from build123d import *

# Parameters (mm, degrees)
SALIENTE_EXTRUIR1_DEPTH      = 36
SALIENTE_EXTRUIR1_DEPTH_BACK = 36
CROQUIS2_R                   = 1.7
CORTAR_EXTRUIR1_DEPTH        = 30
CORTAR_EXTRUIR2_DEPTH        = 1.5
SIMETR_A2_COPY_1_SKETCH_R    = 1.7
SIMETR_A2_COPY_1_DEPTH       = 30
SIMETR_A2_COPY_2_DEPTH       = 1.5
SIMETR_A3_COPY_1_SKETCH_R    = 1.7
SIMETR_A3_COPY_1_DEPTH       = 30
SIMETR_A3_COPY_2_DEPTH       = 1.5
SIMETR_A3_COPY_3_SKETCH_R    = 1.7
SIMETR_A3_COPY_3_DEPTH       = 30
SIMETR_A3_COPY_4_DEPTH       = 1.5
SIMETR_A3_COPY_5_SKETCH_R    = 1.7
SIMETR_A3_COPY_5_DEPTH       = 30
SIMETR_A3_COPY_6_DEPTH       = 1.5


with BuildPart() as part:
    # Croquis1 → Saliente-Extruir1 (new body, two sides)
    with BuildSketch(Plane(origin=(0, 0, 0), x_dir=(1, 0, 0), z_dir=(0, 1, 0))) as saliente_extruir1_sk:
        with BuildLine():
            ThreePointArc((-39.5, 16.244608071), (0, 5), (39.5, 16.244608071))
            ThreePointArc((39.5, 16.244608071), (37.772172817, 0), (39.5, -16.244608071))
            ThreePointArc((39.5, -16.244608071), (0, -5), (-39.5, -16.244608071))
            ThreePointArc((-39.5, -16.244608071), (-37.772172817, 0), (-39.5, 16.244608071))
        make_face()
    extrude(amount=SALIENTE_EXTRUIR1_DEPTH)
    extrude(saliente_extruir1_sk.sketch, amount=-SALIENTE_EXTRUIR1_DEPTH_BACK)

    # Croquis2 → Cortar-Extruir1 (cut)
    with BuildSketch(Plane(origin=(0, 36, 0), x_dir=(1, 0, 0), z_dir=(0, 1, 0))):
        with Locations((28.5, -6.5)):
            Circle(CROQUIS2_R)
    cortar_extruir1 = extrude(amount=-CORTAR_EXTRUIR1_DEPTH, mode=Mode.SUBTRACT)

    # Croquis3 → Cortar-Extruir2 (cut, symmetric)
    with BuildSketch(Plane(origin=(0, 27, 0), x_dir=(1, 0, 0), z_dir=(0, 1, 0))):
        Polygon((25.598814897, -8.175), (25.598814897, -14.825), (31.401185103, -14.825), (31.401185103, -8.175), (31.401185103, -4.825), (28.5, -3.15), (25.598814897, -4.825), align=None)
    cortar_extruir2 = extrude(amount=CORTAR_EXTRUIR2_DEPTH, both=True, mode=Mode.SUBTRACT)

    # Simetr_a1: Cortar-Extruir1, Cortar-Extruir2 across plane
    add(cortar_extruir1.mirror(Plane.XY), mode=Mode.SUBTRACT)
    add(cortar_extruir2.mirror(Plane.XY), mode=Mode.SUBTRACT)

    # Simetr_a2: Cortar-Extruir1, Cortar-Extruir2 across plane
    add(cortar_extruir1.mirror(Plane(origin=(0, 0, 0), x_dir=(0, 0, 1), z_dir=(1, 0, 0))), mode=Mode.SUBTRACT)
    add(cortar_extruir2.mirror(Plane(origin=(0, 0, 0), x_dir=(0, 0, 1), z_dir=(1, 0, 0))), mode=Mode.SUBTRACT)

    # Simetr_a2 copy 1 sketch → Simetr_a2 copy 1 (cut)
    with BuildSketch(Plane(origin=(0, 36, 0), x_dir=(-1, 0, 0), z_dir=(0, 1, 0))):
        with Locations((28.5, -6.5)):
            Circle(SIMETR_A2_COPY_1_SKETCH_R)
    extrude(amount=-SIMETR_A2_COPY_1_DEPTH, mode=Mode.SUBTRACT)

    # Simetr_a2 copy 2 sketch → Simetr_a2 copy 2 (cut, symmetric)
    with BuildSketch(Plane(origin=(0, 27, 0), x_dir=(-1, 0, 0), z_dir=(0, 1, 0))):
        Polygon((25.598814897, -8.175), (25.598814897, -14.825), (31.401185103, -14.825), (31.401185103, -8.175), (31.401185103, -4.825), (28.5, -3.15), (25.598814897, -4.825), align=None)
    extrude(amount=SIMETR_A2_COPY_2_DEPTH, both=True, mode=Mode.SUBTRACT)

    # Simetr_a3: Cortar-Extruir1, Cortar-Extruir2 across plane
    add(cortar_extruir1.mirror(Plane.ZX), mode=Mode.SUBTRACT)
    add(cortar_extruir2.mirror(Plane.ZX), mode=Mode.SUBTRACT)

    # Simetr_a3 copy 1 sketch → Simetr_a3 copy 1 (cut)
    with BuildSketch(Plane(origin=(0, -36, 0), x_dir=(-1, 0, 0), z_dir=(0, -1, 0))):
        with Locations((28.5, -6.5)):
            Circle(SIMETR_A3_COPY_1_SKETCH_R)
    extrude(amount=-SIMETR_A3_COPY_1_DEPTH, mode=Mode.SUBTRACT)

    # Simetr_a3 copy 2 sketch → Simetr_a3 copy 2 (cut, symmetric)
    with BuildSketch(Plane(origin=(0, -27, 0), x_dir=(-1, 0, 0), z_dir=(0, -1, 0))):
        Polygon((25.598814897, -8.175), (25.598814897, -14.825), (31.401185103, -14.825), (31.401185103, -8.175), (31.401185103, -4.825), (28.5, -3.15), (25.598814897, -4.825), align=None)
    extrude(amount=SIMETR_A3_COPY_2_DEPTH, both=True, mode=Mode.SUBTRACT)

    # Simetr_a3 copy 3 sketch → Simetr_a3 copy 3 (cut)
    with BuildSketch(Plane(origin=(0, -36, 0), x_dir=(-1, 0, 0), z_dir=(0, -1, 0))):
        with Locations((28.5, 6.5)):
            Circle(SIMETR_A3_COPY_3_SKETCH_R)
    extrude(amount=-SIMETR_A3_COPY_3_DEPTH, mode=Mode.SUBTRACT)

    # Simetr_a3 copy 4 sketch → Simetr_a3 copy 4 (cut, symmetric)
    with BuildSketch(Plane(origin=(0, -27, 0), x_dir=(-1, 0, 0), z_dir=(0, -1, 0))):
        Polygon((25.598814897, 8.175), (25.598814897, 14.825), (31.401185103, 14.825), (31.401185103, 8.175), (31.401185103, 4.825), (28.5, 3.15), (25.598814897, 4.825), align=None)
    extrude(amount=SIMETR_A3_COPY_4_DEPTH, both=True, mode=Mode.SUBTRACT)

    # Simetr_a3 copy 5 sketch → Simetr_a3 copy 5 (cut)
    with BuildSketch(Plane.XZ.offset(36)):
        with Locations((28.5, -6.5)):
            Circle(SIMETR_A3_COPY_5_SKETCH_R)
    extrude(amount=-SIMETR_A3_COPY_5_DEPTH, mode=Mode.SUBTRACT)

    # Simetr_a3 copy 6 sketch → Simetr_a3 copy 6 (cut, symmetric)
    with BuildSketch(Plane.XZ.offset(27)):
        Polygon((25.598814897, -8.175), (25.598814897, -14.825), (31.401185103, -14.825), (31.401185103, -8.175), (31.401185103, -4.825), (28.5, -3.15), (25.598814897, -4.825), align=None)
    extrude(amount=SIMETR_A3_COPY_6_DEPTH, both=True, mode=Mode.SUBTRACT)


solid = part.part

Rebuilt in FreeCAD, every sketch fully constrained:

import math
import FreeCAD as App
import Part
import Sketcher
from FreeCAD import Vector
Q = App.Units.Quantity


def add_polygon(sketch, points):
    """Adds a closed chain of lines whose ends are joined by coincident constraints."""
    first, n = sketch.GeometryCount, len(points)
    for a, b in zip(points, points[1:] + points[:1]):
        sketch.addGeometry(Part.LineSegment(App.Vector(*a, 0), App.Vector(*b, 0)), False)
    for i in range(n):
        sketch.addConstraint(Sketcher.Constraint("Coincident", first + i, 2, first + (i + 1) % n, 1))

doc = App.newDocument("Part")
body = doc.addObject("PartDesign::Body", "Body")

# Sketch on XZ plane
sketch1 = body.newObject("Sketcher::SketchObject", "Sketch")
sketch1.AttachmentSupport = (doc.getObject("XZ_Plane"), [""])
sketch1.MapMode = "FlatFace"
sketch1.addGeometry(Part.ArcOfCircle(Part.Circle(Vector(0, -80, 0), Vector(0, 0, 1), 75), math.radians(58), math.radians(122)), False)
sketch1.addGeometry(Part.ArcOfCircle(Part.Circle(Vector(-115, 0, 0), Vector(0, 0, 1), 77), math.radians(-12), math.radians(12)), False)
sketch1.addGeometry(Part.ArcOfCircle(Part.Circle(Vector(0, 80, 0), Vector(0, 0, 1), 75), math.radians(-122), math.radians(-58)), False)
sketch1.addGeometry(Part.ArcOfCircle(Part.Circle(Vector(115, 0, 0), Vector(0, 0, 1), 77), math.radians(168), math.radians(192)), False)
sketch1.addConstraint(Sketcher.Constraint("Coincident", 0, 2, 1, 1))
sketch1.addConstraint(Sketcher.Constraint("Coincident", 1, 2, 2, 1))
sketch1.addConstraint(Sketcher.Constraint("Coincident", 2, 2, 3, 1))
sketch1.addConstraint(Sketcher.Constraint("Coincident", 3, 2, 0, 1))
sketch1.addConstraint(Sketcher.Constraint("Equal", 0, 2))
sketch1.addConstraint(Sketcher.Constraint("Equal", 1, 3))
sketch1.addConstraint(Sketcher.Constraint("Symmetric", 0, 3, 2, 3, -1, 1))
sketch1.addConstraint(Sketcher.Constraint("Symmetric", 1, 3, 3, 3, -1, 1))
sketch1.addConstraint(Sketcher.Constraint("Symmetric", 1, 2, 2, 2, -2))
sketch1.addConstraint(Sketcher.Constraint("Radius", 0, 75.0))
sketch1.addConstraint(Sketcher.Constraint("DistanceY", 0, 3, -1, 1, 80.0))
sketch1.addConstraint(Sketcher.Constraint("DistanceX", 1, 3, -1, 1, 115.0))
sketch1.addConstraint(Sketcher.Constraint("DistanceX", 1, 2, 2, 2, 79.0))
pad1 = body.newObject("PartDesign::Pad", "Pad")
pad1.Profile = sketch1
pad1.Type = "TwoLengths"
pad1.Length = 36
pad1.Length2 = 36
pad1.Reversed = True

# Sketch on XZ plane
sketch2 = body.newObject("Sketcher::SketchObject", "Sketch001")
sketch2.AttachmentSupport = (doc.getObject("XZ_Plane"), [""])
sketch2.MapMode = "FlatFace"
sketch2.AttachmentOffset = App.Placement(Vector(0, 0, -36), App.Rotation())
sketch2.addGeometry(Part.Circle(Vector(28.5, 6.5, 0), Vector(0, 0, 1), 1.7), False)
sketch2.addConstraint(Sketcher.Constraint("Diameter", 0, 3.4))
sketch2.addConstraint(Sketcher.Constraint("DistanceX", -1, 1, 0, 3, 28.5))
sketch2.addConstraint(Sketcher.Constraint("DistanceY", -1, 1, 0, 3, 6.5))
pocket1 = body.newObject("PartDesign::Pocket", "Pocket")
pocket1.Profile = sketch2
pocket1.Length = 30
pocket1.Reversed = True

# Sketch on XZ plane
sketch3 = body.newObject("Sketcher::SketchObject", "Sketch002")
sketch3.AttachmentSupport = (doc.getObject("XZ_Plane"), [""])
sketch3.MapMode = "FlatFace"
sketch3.AttachmentOffset = App.Placement(Vector(0, 0, -27), App.Rotation())
add_polygon(sketch3, [(25.6, 14.8), (31.4, 14.8), (31.4, 4.8), (28.5, 3.1), (25.6, 4.8)])  # lines 0-4
sketch3.addConstraint(Sketcher.Constraint("Horizontal", 0))
sketch3.addConstraint(Sketcher.Constraint("Vertical", 1))
sketch3.addConstraint(Sketcher.Constraint("Vertical", 4))
sketch3.addConstraint(Sketcher.Constraint("Horizontal", 1, 2, 3, 2))
sketch3.addConstraint(Sketcher.Constraint("Equal", 2, 3))
sketch3.addConstraint(Sketcher.Constraint("DistanceY", 1, 2, 1, 1, 10.0))
sketch3.addConstraint(Sketcher.Constraint("Angle", 2, Q("-150 deg")))
sketch3.addConstraint(Sketcher.Constraint("DistanceX", -1, 1, 2, 2, 28.5))
sketch3.addConstraint(Sketcher.Constraint("Distance", 2, 3.35))
sketch3.addConstraint(Sketcher.Constraint("DistanceY", -1, 1, 2, 2, 3.15))
pocket2 = body.newObject("PartDesign::Pocket", "Pocket001")
pocket2.Profile = sketch3
pocket2.Length = 3
pocket2.Midplane = True
doc.recompute()

mirrored = body.newObject("PartDesign::Mirrored", "Mirrored")
mirrored.Originals = [pocket1, pocket2]
mirrored.MirrorPlane = (doc.getObject("XY_Plane"), [""])
body.Tip = mirrored
doc.recompute()

mirrored2 = body.newObject("PartDesign::Mirrored", "Mirrored001")
mirrored2.Originals = [pocket1, pocket2]
mirrored2.MirrorPlane = (doc.getObject("YZ_Plane"), [""])
body.Tip = mirrored2

# Sketch on XZ plane
sketch4 = body.newObject("Sketcher::SketchObject", "Sketch003")
sketch4.AttachmentSupport = (doc.getObject("XZ_Plane"), [""])
sketch4.MapMode = "FlatFace"
sketch4.AttachmentOffset = App.Placement(Vector(0, 0, -36), App.Rotation())
sketch4.addGeometry(Part.Circle(Vector(-28.5, -6.5, 0), Vector(0, 0, 1), 1.7), False)
sketch4.addConstraint(Sketcher.Constraint("Diameter", 0, 3.4))
sketch4.addConstraint(Sketcher.Constraint("DistanceX", 0, 3, -1, 1, 28.5))
sketch4.addConstraint(Sketcher.Constraint("DistanceY", 0, 3, -1, 1, 6.5))
pocket3 = body.newObject("PartDesign::Pocket", "Pocket002")
pocket3.Profile = sketch4
pocket3.Length = 30
pocket3.Reversed = True

# Sketch on XZ plane
sketch5 = body.newObject("Sketcher::SketchObject", "Sketch004")
sketch5.AttachmentSupport = (doc.getObject("XZ_Plane"), [""])
sketch5.MapMode = "FlatFace"
sketch5.AttachmentOffset = App.Placement(Vector(0, 0, -27), App.Rotation())
add_polygon(sketch5, [(-25.6, -14.8), (-31.4, -14.8), (-31.4, -4.8), (-28.5, -3.1), (-25.6, -4.8)])  # lines 0-4
sketch5.addConstraint(Sketcher.Constraint("Horizontal", 0))
sketch5.addConstraint(Sketcher.Constraint("Vertical", 1))
sketch5.addConstraint(Sketcher.Constraint("Vertical", 4))
sketch5.addConstraint(Sketcher.Constraint("Horizontal", 1, 2, 3, 2))
sketch5.addConstraint(Sketcher.Constraint("Equal", 2, 3))
sketch5.addConstraint(Sketcher.Constraint("DistanceY", 1, 1, 1, 2, 10.0))
sketch5.addConstraint(Sketcher.Constraint("Angle", 2, Q("30 deg")))
sketch5.addConstraint(Sketcher.Constraint("DistanceX", 2, 2, -1, 1, 28.5))
sketch5.addConstraint(Sketcher.Constraint("Distance", 2, 3.35))
sketch5.addConstraint(Sketcher.Constraint("DistanceY", 2, 2, -1, 1, 3.15))
pocket4 = body.newObject("PartDesign::Pocket", "Pocket003")
pocket4.Profile = sketch5
pocket4.Length = 3
pocket4.Midplane = True
doc.recompute()

mirrored3 = body.newObject("PartDesign::Mirrored", "Mirrored002")
mirrored3.Originals = [pocket1, pocket2]
mirrored3.MirrorPlane = (doc.getObject("XZ_Plane"), [""])
body.Tip = mirrored3

# Sketch on XZ plane
sketch6 = body.newObject("Sketcher::SketchObject", "Sketch005")
sketch6.AttachmentSupport = (doc.getObject("XZ_Plane"), [""])
sketch6.MapMode = "FlatFace"
sketch6.AttachmentOffset = App.Placement(Vector(0, 0, 36), App.Rotation())
sketch6.addGeometry(Part.Circle(Vector(-28.5, 6.5, 0), Vector(0, 0, 1), 1.7), False)
sketch6.addConstraint(Sketcher.Constraint("Diameter", 0, 3.4))
sketch6.addConstraint(Sketcher.Constraint("DistanceX", 0, 3, -1, 1, 28.5))
sketch6.addConstraint(Sketcher.Constraint("DistanceY", -1, 1, 0, 3, 6.5))
pocket5 = body.newObject("PartDesign::Pocket", "Pocket004")
pocket5.Profile = sketch6
pocket5.Length = 30

# Sketch on XZ plane
sketch7 = body.newObject("Sketcher::SketchObject", "Sketch006")
sketch7.AttachmentSupport = (doc.getObject("XZ_Plane"), [""])
sketch7.MapMode = "FlatFace"
sketch7.AttachmentOffset = App.Placement(Vector(0, 0, 27), App.Rotation())
add_polygon(sketch7, [(-25.6, 14.8), (-31.4, 14.8), (-31.4, 4.8), (-28.5, 3.1), (-25.6, 4.8)])  # lines 0-4
sketch7.addConstraint(Sketcher.Constraint("Horizontal", 0))
sketch7.addConstraint(Sketcher.Constraint("Vertical", 1))
sketch7.addConstraint(Sketcher.Constraint("Vertical", 4))
sketch7.addConstraint(Sketcher.Constraint("Horizontal", 1, 2, 3, 2))
sketch7.addConstraint(Sketcher.Constraint("Equal", 2, 3))
sketch7.addConstraint(Sketcher.Constraint("DistanceY", 1, 2, 1, 1, 10.0))
sketch7.addConstraint(Sketcher.Constraint("Angle", 2, Q("-30 deg")))
sketch7.addConstraint(Sketcher.Constraint("DistanceX", 2, 2, -1, 1, 28.5))
sketch7.addConstraint(Sketcher.Constraint("Distance", 2, 3.35))
sketch7.addConstraint(Sketcher.Constraint("DistanceY", -1, 1, 2, 2, 3.15))
pocket6 = body.newObject("PartDesign::Pocket", "Pocket005")
pocket6.Profile = sketch7
pocket6.Length = 3
pocket6.Midplane = True

# Sketch on XZ plane
sketch8 = body.newObject("Sketcher::SketchObject", "Sketch007")
sketch8.AttachmentSupport = (doc.getObject("XZ_Plane"), [""])
sketch8.MapMode = "FlatFace"
sketch8.AttachmentOffset = App.Placement(Vector(0, 0, 36), App.Rotation())
sketch8.addGeometry(Part.Circle(Vector(-28.5, -6.5, 0), Vector(0, 0, 1), 1.7), False)
sketch8.addConstraint(Sketcher.Constraint("Diameter", 0, 3.4))
sketch8.addConstraint(Sketcher.Constraint("DistanceX", 0, 3, -1, 1, 28.5))
sketch8.addConstraint(Sketcher.Constraint("DistanceY", 0, 3, -1, 1, 6.5))
pocket7 = body.newObject("PartDesign::Pocket", "Pocket006")
pocket7.Profile = sketch8
pocket7.Length = 30

# Sketch on XZ plane
sketch9 = body.newObject("Sketcher::SketchObject", "Sketch008")
sketch9.AttachmentSupport = (doc.getObject("XZ_Plane"), [""])
sketch9.MapMode = "FlatFace"
sketch9.AttachmentOffset = App.Placement(Vector(0, 0, 27), App.Rotation())
add_polygon(sketch9, [(-25.6, -14.8), (-25.6, -4.8), (-28.5, -3.1), (-31.4, -4.8), (-31.4, -14.8)])  # lines 0-4
sketch9.addConstraint(Sketcher.Constraint("Vertical", 0))
sketch9.addConstraint(Sketcher.Constraint("Vertical", 3))
sketch9.addConstraint(Sketcher.Constraint("Horizontal", 4))
sketch9.addConstraint(Sketcher.Constraint("Horizontal", 0, 2, 2, 2))
sketch9.addConstraint(Sketcher.Constraint("Equal", 1, 2))
sketch9.addConstraint(Sketcher.Constraint("DistanceY", 0, 1, 0, 2, 10.0))
sketch9.addConstraint(Sketcher.Constraint("Angle", 1, Q("150 deg")))
sketch9.addConstraint(Sketcher.Constraint("DistanceX", 1, 2, -1, 1, 28.5))
sketch9.addConstraint(Sketcher.Constraint("Distance", 1, 3.35))
sketch9.addConstraint(Sketcher.Constraint("DistanceY", 1, 2, -1, 1, 3.15))
pocket8 = body.newObject("PartDesign::Pocket", "Pocket007")
pocket8.Profile = sketch9
pocket8.Length = 3
pocket8.Midplane = True

# Sketch on XZ plane
sketch10 = body.newObject("Sketcher::SketchObject", "Sketch009")
sketch10.AttachmentSupport = (doc.getObject("XZ_Plane"), [""])
sketch10.MapMode = "FlatFace"
sketch10.AttachmentOffset = App.Placement(Vector(0, 0, 36), App.Rotation())
sketch10.addGeometry(Part.Circle(Vector(28.5, -6.5, 0), Vector(0, 0, 1), 1.7), False)
sketch10.addConstraint(Sketcher.Constraint("Diameter", 0, 3.4))
sketch10.addConstraint(Sketcher.Constraint("DistanceX", -1, 1, 0, 3, 28.5))
sketch10.addConstraint(Sketcher.Constraint("DistanceY", 0, 3, -1, 1, 6.5))
pocket9 = body.newObject("PartDesign::Pocket", "Pocket008")
pocket9.Profile = sketch10
pocket9.Length = 30

# Sketch on XZ plane
sketch11 = body.newObject("Sketcher::SketchObject", "Sketch010")
sketch11.AttachmentSupport = (doc.getObject("XZ_Plane"), [""])
sketch11.MapMode = "FlatFace"
sketch11.AttachmentOffset = App.Placement(Vector(0, 0, 27), App.Rotation())
add_polygon(sketch11, [(25.6, -14.8), (31.4, -14.8), (31.4, -4.8), (28.5, -3.1), (25.6, -4.8)])  # lines 0-4
sketch11.addConstraint(Sketcher.Constraint("Horizontal", 0))
sketch11.addConstraint(Sketcher.Constraint("Vertical", 1))
sketch11.addConstraint(Sketcher.Constraint("Vertical", 4))
sketch11.addConstraint(Sketcher.Constraint("Horizontal", 1, 2, 3, 2))
sketch11.addConstraint(Sketcher.Constraint("Equal", 2, 3))
sketch11.addConstraint(Sketcher.Constraint("DistanceY", 1, 1, 1, 2, 10.0))
sketch11.addConstraint(Sketcher.Constraint("Angle", 2, Q("150 deg")))
sketch11.addConstraint(Sketcher.Constraint("DistanceX", -1, 1, 2, 2, 28.5))
sketch11.addConstraint(Sketcher.Constraint("Distance", 2, 3.35))
sketch11.addConstraint(Sketcher.Constraint("DistanceY", 2, 2, -1, 1, 3.15))
pocket10 = body.newObject("PartDesign::Pocket", "Pocket009")
pocket10.Profile = sketch11
pocket10.Length = 3
pocket10.Midplane = True

doc.recompute()
